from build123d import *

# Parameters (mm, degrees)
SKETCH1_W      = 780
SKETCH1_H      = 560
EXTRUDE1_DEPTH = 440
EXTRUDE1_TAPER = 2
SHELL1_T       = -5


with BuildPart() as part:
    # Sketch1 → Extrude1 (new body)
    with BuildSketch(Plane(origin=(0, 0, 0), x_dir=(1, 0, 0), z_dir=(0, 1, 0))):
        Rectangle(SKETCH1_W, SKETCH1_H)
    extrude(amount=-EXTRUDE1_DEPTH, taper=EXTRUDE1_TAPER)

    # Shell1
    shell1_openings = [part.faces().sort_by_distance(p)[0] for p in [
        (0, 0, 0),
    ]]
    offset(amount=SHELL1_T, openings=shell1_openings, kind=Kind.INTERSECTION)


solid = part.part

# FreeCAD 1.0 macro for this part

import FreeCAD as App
import Part
import Sketcher
from FreeCAD import Vector


def faces_at(feature, points):
    """Names of the faces that lie closest to the given points."""
    faces = feature.Shape.Faces
    near = lambda p: min(range(len(faces)), key=lambda i: faces[i].distToShape(Part.Vertex(*p))[0])
    return sorted({f"Face{near(p) + 1}" for p in points})

doc = App.newDocument("Part")
body = doc.addObject("PartDesign::Body", "Body")

# Sketch on XZ plane
sketch1 = body.newObject("Sketcher::SketchObject", "Sketch")
sketch1.AttachmentSupport = (doc.getObject("XZ_Plane"), [""])
sketch1.MapMode = "FlatFace"
sketch1.addGeometry([
    Part.LineSegment(Vector(-390, -280, 0), Vector(-390, 280, 0)),
    Part.LineSegment(Vector(-390, 280, 0), Vector(390, 280, 0)),
    Part.LineSegment(Vector(390, 280, 0), Vector(390, -280, 0)),
    Part.LineSegment(Vector(390, -280, 0), Vector(-390, -280, 0)),
], False)
sketch1.addConstraint([
    Sketcher.Constraint("Coincident", 0, 2, 1, 1),
    Sketcher.Constraint("Coincident", 1, 2, 2, 1),
    Sketcher.Constraint("Coincident", 2, 2, 3, 1),
    Sketcher.Constraint("Coincident", 3, 2, 0, 1),
    Sketcher.Constraint("Vertical", 0),
    Sketcher.Constraint("Horizontal", 1),
    Sketcher.Constraint("Vertical", 2),
    Sketcher.Constraint("Horizontal", 3),
    Sketcher.Constraint("Symmetric", 0, 2, 2, 2, -1, 1),
    Sketcher.Constraint("DistanceX", 1, 1, 1, 2, 780.0),
    Sketcher.Constraint("DistanceY", 0, 1, 0, 2, 560.0),
])
pad1 = body.newObject("PartDesign::Pad", "Pad")
pad1.Profile = sketch1
pad1.Length = 440
pad1.TaperAngle = -2
doc.recompute()

thickness = body.newObject("PartDesign::Thickness", "Thickness")
thickness.Base = (pad1, faces_at(pad1, [(0, 0, 0)]))
thickness.Value = 5
thickness.Reversed = True
thickness.Join = "Intersection"

doc.recompute()
